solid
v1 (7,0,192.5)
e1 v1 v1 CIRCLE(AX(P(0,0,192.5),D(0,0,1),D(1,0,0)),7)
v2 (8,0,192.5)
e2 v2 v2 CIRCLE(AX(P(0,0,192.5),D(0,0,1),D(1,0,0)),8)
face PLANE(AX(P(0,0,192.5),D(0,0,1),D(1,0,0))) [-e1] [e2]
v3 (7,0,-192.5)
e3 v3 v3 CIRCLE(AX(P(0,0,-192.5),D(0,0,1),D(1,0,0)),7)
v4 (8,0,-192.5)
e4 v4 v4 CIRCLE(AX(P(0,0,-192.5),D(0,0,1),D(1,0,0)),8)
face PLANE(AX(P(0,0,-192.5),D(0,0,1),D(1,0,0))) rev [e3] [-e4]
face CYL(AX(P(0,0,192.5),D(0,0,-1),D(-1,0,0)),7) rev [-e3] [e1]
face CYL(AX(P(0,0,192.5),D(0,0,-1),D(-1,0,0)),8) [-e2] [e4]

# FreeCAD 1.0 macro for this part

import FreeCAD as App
import Part
import Sketcher
Q = App.Units.Quantity

doc = App.newDocument("Part")
params = doc.addObject("Spreadsheet::Sheet", "Params")
for row, (alias, value) in enumerate([
    ("sketch1_diameter", "16 mm"),
    ("sketch1_diameter2", "14 mm"),
    ("pad1_length", "385 mm"),
], start=1):
    params.set(f"A{row}", alias)
    params.set(f"B{row}", "=" + value)
    params.setAlias(f"B{row}", alias)

body = doc.addObject("PartDesign::Body", "Body")

# Sketch on XY plane
sketch1 = doc.addObject("Sketcher::SketchObject", "Sketch")
body.addObject(sketch1)
sketch1.AttachmentSupport = (doc.XY_Plane, [""])
sketch1.MapMode = "FlatFace"
sketch1.addGeometry([
    Part.Circle(App.Vector(0, 0, 0), App.Vector(0, 0, 1), 8),
    Part.Circle(App.Vector(0, 0, 0), App.Vector(0, 0, 1), 7),
], False)
sketch1.addConstraint([
    Sketcher.Constraint("Coincident", 0, 3, -1, 1),
    Sketcher.Constraint("Coincident", 1, 3, -1, 1),
    Sketcher.Constraint("Diameter", 0, Q("16 mm")),
    Sketcher.Constraint("Diameter", 1, Q("14 mm")),
])
sketch1.setExpression("Constraints[2]", "Params.sketch1_diameter")
sketch1.setExpression("Constraints[3]", "Params.sketch1_diameter2")
pad1 = doc.addObject("PartDesign::Pad", "Pad")
body.addObject(pad1)
pad1.Profile = sketch1
pad1.setExpression("Length", "Params.pad1_length")
pad1.Midplane = True

doc.recompute()
